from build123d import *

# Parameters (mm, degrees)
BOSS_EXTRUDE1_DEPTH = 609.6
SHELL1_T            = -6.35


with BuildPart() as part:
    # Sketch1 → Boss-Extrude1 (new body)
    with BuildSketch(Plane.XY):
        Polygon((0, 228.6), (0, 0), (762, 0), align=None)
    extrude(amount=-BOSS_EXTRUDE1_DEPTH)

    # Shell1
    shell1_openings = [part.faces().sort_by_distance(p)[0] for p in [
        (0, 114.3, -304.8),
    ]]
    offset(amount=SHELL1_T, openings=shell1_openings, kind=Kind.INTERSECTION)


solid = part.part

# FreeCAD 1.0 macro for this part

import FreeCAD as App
import Part
import Sketcher

V = App.Vector
Q = App.Units.Quantity


def faces_at(feature, points):
    """Names of the faces that lie closest to the given points."""
    faces = feature.Shape.Faces
    near = lambda p: min(range(len(faces)), key=lambda i: faces[i].distToShape(Part.Vertex(*p))[0])
    return sorted({f"Face{near(p) + 1}" for p in points})


def add_polygon(sketch, points):
    """Adds a closed chain of lines whose ends are joined by coincident constraints."""
    first, n = sketch.GeometryCount, len(points)
    for a, b in zip(points, points[1:] + points[:1]):
        sketch.addGeometry(Part.LineSegment(App.Vector(*a, 0), App.Vector(*b, 0)), False)
    for i in range(n):
        sketch.addConstraint(Sketcher.Constraint("Coincident", first + i, 2, first + (i + 1) % n, 1))

doc = App.newDocument("Part")
body = doc.addObject("PartDesign::Body", "Body")

sketch1 = body.newObject("Sketcher::SketchObject", "Sketch")
sketch1.AttachmentSupport = (doc.getObject("XY_Plane"), [""])
sketch1.MapMode = "FlatFace"
add_polygon(sketch1, [(0, 228.6), (0, 0), (762, 0)])
sketch1.addConstraint(Sketcher.Constraint("Vertical", 0))
sketch1.addConstraint(Sketcher.Constraint("Horizontal", 1))
sketch1.addConstraint(Sketcher.Constraint("Coincident", 0, 2, -1, 1))
sketch1.addConstraint(Sketcher.Constraint("DistanceX", 1, 1, 1, 2, Q("30 in")))
sketch1.addConstraint(Sketcher.Constraint("DistanceY", 0, 2, 0, 1, Q("9 in")))
pad1 = body.newObject("PartDesign::Pad", "Pad")
pad1.Profile = sketch1
pad1.Length = Q("24 in")
pad1.Reversed = True
doc.recompute()

thickness = body.newObject("PartDesign::Thickness", "Thickness")
thickness.Base = (pad1, faces_at(pad1, [(0, 114.3, -304.8)]))
thickness.Value = Q("0.25 in")
thickness.Reversed = True
thickness.Join = "Intersection"

doc.recompute()
